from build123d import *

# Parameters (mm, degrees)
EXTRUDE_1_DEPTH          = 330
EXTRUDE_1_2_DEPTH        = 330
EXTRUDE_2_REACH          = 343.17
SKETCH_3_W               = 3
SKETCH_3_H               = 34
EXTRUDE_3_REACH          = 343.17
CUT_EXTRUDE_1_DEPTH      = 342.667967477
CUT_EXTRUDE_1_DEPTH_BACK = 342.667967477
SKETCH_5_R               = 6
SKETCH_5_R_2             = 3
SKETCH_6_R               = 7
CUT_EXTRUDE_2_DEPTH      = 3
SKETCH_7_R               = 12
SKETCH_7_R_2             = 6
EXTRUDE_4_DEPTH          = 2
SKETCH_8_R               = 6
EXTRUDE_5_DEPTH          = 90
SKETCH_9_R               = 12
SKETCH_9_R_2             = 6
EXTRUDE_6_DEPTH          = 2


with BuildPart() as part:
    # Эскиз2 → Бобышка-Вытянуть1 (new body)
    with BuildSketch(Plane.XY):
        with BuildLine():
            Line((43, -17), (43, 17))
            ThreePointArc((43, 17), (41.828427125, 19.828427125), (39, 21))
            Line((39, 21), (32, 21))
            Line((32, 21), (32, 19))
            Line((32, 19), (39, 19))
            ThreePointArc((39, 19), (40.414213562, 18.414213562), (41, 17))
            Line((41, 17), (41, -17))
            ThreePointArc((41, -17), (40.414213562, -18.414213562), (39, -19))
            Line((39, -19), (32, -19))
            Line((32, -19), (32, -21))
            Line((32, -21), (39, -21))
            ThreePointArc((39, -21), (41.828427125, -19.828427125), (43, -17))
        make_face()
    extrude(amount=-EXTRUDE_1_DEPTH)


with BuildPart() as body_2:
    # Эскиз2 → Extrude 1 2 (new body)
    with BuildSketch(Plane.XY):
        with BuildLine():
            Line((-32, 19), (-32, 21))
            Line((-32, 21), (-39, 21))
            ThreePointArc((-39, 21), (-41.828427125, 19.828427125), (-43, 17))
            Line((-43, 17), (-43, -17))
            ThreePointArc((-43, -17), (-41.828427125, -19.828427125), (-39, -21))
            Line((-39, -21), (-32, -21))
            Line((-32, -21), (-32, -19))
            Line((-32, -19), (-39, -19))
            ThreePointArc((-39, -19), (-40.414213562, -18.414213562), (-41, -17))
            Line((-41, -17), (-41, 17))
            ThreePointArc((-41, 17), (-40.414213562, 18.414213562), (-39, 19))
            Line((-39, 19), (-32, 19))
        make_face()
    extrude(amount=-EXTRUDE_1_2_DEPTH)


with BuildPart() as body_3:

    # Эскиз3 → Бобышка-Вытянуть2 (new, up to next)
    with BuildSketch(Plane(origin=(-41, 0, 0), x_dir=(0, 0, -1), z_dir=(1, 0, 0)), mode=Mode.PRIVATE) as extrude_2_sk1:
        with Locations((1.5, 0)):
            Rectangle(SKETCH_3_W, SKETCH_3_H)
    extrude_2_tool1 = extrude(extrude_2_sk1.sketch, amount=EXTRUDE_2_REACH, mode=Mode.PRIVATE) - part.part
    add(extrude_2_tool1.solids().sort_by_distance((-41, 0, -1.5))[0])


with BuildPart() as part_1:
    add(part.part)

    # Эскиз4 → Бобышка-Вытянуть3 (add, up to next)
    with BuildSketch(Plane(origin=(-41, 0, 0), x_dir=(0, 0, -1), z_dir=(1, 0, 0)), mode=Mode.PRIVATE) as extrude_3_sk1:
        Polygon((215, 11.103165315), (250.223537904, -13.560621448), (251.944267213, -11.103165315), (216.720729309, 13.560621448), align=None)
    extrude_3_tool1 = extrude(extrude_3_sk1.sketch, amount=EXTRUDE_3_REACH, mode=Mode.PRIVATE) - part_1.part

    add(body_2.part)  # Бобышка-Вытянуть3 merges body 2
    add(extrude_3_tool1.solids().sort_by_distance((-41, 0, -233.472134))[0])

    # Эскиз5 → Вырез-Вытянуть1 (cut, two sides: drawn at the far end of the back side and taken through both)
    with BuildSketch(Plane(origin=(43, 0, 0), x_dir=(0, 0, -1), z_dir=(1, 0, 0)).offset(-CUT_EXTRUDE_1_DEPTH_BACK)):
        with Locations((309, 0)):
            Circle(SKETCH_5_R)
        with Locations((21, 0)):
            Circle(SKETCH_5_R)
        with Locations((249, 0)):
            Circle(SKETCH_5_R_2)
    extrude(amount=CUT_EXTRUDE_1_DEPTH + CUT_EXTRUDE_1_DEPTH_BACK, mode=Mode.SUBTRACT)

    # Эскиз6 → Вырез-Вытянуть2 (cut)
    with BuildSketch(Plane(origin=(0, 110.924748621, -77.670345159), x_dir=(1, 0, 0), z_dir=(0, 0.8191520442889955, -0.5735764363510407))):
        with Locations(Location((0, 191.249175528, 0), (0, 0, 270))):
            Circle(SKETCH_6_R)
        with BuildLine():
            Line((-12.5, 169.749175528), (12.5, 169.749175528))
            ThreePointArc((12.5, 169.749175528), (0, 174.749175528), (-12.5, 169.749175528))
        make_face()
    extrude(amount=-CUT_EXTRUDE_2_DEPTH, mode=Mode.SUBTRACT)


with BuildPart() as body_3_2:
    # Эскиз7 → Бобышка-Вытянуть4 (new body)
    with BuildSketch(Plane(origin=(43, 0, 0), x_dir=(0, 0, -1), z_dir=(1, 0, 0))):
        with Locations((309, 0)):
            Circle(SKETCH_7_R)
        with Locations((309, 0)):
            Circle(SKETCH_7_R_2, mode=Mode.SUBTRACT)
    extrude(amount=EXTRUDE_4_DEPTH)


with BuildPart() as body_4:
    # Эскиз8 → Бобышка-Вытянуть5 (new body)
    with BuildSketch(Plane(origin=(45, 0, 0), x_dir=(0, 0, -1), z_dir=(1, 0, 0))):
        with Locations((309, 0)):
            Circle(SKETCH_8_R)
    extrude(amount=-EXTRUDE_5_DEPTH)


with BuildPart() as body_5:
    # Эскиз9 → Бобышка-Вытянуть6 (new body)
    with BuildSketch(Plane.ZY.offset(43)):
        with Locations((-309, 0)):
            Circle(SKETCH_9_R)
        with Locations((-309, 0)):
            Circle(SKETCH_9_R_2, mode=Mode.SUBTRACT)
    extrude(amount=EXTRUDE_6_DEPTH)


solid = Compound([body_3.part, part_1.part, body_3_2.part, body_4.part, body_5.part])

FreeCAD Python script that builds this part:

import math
import FreeCAD as App
import Part
import Sketcher

V = App.Vector
Q = App.Units.Quantity

doc = App.newDocument("Part")
body = doc.addObject("PartDesign::Body", "Body")

# Sketch on XY plane
sketch1 = body.newObject("Sketcher::SketchObject", "Sketch")
sketch1.AttachmentSupport = (doc.getObject("XY_Plane"), [""])
sketch1.MapMode = "FlatFace"
sketch1.addGeometry([
    Part.LineSegment(V(43, -17, 0), V(43, 17, 0)),  # 0
    Part.ArcOfCircle(Part.Circle(V(39, 17, 0), V(0, 0, 1), 4), math.radians(0), math.radians(90)),  # 1
    Part.LineSegment(V(39, 21, 0), V(32, 21, 0)),  # 2
    Part.LineSegment(V(32, 21, 0), V(32, 19, 0)),  # 3
    Part.LineSegment(V(32, 19, 0), V(39, 19, 0)),  # 4
    Part.ArcOfCircle(Part.Circle(V(39, 17, 0), V(0, 0, 1), 2), math.radians(0), math.radians(90)),  # 5
    Part.LineSegment(V(41, 17, 0), V(41, -17, 0)),  # 6
    Part.ArcOfCircle(Part.Circle(V(39, -17, 0), V(0, 0, 1), 2), math.radians(-90), math.radians(0)),  # 7
    Part.LineSegment(V(39, -19, 0), V(32, -19, 0)),  # 8
    Part.LineSegment(V(32, -19, 0), V(32, -21, 0)),  # 9
    Part.LineSegment(V(32, -21, 0), V(39, -21, 0)),  # 10
    Part.ArcOfCircle(Part.Circle(V(39, -17, 0), V(0, 0, 1), 4), math.radians(-90), math.radians(0)),  # 11
], False)
sketch1.addConstraint([
    Sketcher.Constraint("Tangent", 0, 2, 1, 1),
    Sketcher.Constraint("Tangent", 1, 2, 2, 1),
    Sketcher.Constraint("Coincident", 2, 2, 3, 1),
    Sketcher.Constraint("Coincident", 3, 2, 4, 1),
    Sketcher.Constraint("Tangent", 4, 2, 5, 2),
    Sketcher.Constraint("Tangent", 5, 1, 6, 1),
    Sketcher.Constraint("Tangent", 6, 2, 7, 2),
    Sketcher.Constraint("Tangent", 7, 1, 8, 1),
    Sketcher.Constraint("Coincident", 8, 2, 9, 1),
    Sketcher.Constraint("Coincident", 9, 2, 10, 1),
    Sketcher.Constraint("Tangent", 10, 2, 11, 1),
    Sketcher.Constraint("Tangent", 11, 2, 0, 1),
    Sketcher.Constraint("Vertical", 0),
    Sketcher.Constraint("Horizontal", 2),
    Sketcher.Constraint("Vertical", 3),
    Sketcher.Constraint("Horizontal", 4),
    Sketcher.Constraint("Vertical", 6),
    Sketcher.Constraint("Horizontal", 8),
    Sketcher.Constraint("Vertical", 9),
    Sketcher.Constraint("Horizontal", 10),
    Sketcher.Constraint("Coincident", 5, 3, 1, 3),
    Sketcher.Constraint("Coincident", 11, 3, 7, 3),
    Sketcher.Constraint("Equal", 5, 7),
    Sketcher.Constraint("Symmetric", 3, 2, 8, 2, -1),
    Sketcher.Constraint("Radius", 1, Q("4 mm")),
    Sketcher.Constraint("Radius", 5, Q("2 mm")),
    Sketcher.Constraint("DistanceX", 2, 2, 2, 1, Q("7 mm")),
    Sketcher.Constraint("DistanceY", 0, 1, 0, 2, Q("34 mm")),
    Sketcher.Constraint("DistanceX", -1, 1, 1, 3, Q("39 mm")),
])
pad1 = body.newObject("PartDesign::Pad", "Pad")
pad1.Profile = sketch1
pad1.Length = 330
pad1.Reversed = True
body2 = doc.addObject("PartDesign::Body", "Body001")

# Sketch on XY plane
sketch2 = body2.newObject("Sketcher::SketchObject", "Sketch001")
sketch2.AttachmentSupport = (doc.getObject("XY_Plane001"), [""])
sketch2.MapMode = "FlatFace"
sketch2.addGeometry([
    Part.LineSegment(V(-32, 19, 0), V(-32, 21, 0)),  # 0
    Part.LineSegment(V(-32, 21, 0), V(-39, 21, 0)),  # 1
    Part.ArcOfCircle(Part.Circle(V(-39, 17, 0), V(0, 0, 1), 4), math.radians(90), math.radians(180)),  # 2
    Part.LineSegment(V(-43, 17, 0), V(-43, -17, 0)),  # 3
    Part.ArcOfCircle(Part.Circle(V(-39, -17, 0), V(0, 0, 1), 4), math.radians(180), math.radians(270)),  # 4
    Part.LineSegment(V(-39, -21, 0), V(-32, -21, 0)),  # 5
    Part.LineSegment(V(-32, -21, 0), V(-32, -19, 0)),  # 6
    Part.LineSegment(V(-32, -19, 0), V(-39, -19, 0)),  # 7
    Part.ArcOfCircle(Part.Circle(V(-39, -17, 0), V(0, 0, 1), 2), math.radians(-180), math.radians(-90)),  # 8
    Part.LineSegment(V(-41, -17, 0), V(-41, 17, 0)),  # 9
    Part.ArcOfCircle(Part.Circle(V(-39, 17, 0), V(0, 0, 1), 2), math.radians(90), math.radians(180)),  # 10
    Part.LineSegment(V(-39, 19, 0), V(-32, 19, 0)),  # 11
], False)
sketch2.addConstraint([
    Sketcher.Constraint("Coincident", 0, 2, 1, 1),
    Sketcher.Constraint("Tangent", 1, 2, 2, 1),
    Sketcher.Constraint("Tangent", 2, 2, 3, 1),
    Sketcher.Constraint("Tangent", 3, 2, 4, 1),
    Sketcher.Constraint("Tangent", 4, 2, 5, 1),
    Sketcher.Constraint("Coincident", 5, 2, 6, 1),
    Sketcher.Constraint("Coincident", 6, 2, 7, 1),
    Sketcher.Constraint("Tangent", 7, 2, 8, 2),
    Sketcher.Constraint("Tangent", 8, 1, 9, 1),
    Sketcher.Constraint("Tangent", 9, 2, 10, 2),
    Sketcher.Constraint("Tangent", 10, 1, 11, 1),
    Sketcher.Constraint("Coincident", 11, 2, 0, 1),
    Sketcher.Constraint("Vertical", 0),
    Sketcher.Constraint("Horizontal", 1),
    Sketcher.Constraint("Vertical", 3),
    Sketcher.Constraint("Horizontal", 5),
    Sketcher.Constraint("Vertical", 6),
    Sketcher.Constraint("Horizontal", 7),
    Sketcher.Constraint("Vertical", 9),
    Sketcher.Constraint("Horizontal", 11),
    Sketcher.Constraint("Coincident", 8, 3, 4, 3),
    Sketcher.Constraint("Coincident", 10, 3, 2, 3),
    Sketcher.Constraint("Equal", 2, 4),
    Sketcher.Constraint("Symmetric", 0, 2, 5, 2, -1),
    Sketcher.Constraint("Radius", 2, Q("4 mm")),
    Sketcher.Constraint("Radius", 8, Q("2 mm")),
    Sketcher.Constraint("DistanceX", 1, 2, 1, 1, Q("7 mm")),
    Sketcher.Constraint("DistanceY", 3, 2, 3, 1, Q("34 mm")),
    Sketcher.Constraint("DistanceX", 2, 3, -1, 1, Q("39 mm")),
])
pad2 = body2.newObject("PartDesign::Pad", "Pad001")
pad2.Profile = sketch2
pad2.Length = 330
pad2.Reversed = True
body3 = doc.addObject("PartDesign::Body", "Body002")

# Sketch on YZ plane
sketch3 = body3.newObject("Sketcher::SketchObject", "Sketch002")
sketch3.AttachmentSupport = (doc.getObject("YZ_Plane002"), [""])
sketch3.MapMode = "FlatFace"
sketch3.AttachmentOffset = App.Placement(V(0, 0, -41), App.Rotation())
sketch3.addGeometry([
    Part.LineSegment(V(17, 0, 0), V(-17, 0, 0)),
    Part.LineSegment(V(-17, 0, 0), V(-17, -3, 0)),
    Part.LineSegment(V(-17, -3, 0), V(17, -3, 0)),
    Part.LineSegment(V(17, -3, 0), V(17, 0, 0)),
], False)
sketch3.addConstraint([
    Sketcher.Constraint("Coincident", 0, 2, 1, 1),
    Sketcher.Constraint("Coincident", 1, 2, 2, 1),
    Sketcher.Constraint("Coincident", 2, 2, 3, 1),
    Sketcher.Constraint("Coincident", 3, 2, 0, 1),
    Sketcher.Constraint("Horizontal", 0),
    Sketcher.Constraint("Vertical", 1),
    Sketcher.Constraint("Horizontal", 2),
    Sketcher.Constraint("Vertical", 3),
    Sketcher.Constraint("Symmetric", 0, 2, 3, 2, -1, 1),
    Sketcher.Constraint("DistanceX", 0, 2, 0, 1, Q("34 mm")),
    Sketcher.Constraint("DistanceY", 1, 2, 1, 1, Q("3 mm")),
])
pad3 = body3.newObject("PartDesign::Pad", "Pad002")
pad3.Profile = sketch3
pad3.Length = 82
body.AllowCompound = True
doc.recompute()

boolean = body.newObject("PartDesign::Boolean", "Boolean")
boolean.Type = "Fuse"
boolean.addObjects([body2])

# Sketch on YZ plane
sketch4 = body.newObject("Sketcher::SketchObject", "Sketch003")
sketch4.AttachmentSupport = (doc.getObject("YZ_Plane"), [""])
sketch4.MapMode = "FlatFace"
sketch4.AttachmentOffset = App.Placement(V(0, 0, -41), App.Rotation())
sketch4.addGeometry([
    Part.LineSegment(V(11.1, -215, 0), V(-13.6, -250.2, 0)),
    Part.LineSegment(V(-13.6, -250.2, 0), V(-11.1, -251.9, 0)),
    Part.LineSegment(V(-11.1, -251.9, 0), V(13.6, -216.7, 0)),
    Part.LineSegment(V(13.6, -216.7, 0), V(11.1, -215, 0)),
], False)
sketch4.addConstraint([
    Sketcher.Constraint("Coincident", 0, 2, 1, 1),
    Sketcher.Constraint("Coincident", 1, 2, 2, 1),
    Sketcher.Constraint("Coincident", 2, 2, 3, 1),
    Sketcher.Constraint("Coincident", 3, 2, 0, 1),
    Sketcher.Constraint("Perpendicular", 0, 1),
    Sketcher.Constraint("Perpendicular", 1, 2),
    Sketcher.Constraint("Perpendicular", 2, 3),
    Sketcher.Constraint("Angle", 0, Q("-125 deg")),
    Sketcher.Constraint("Distance", 0, Q("43 mm")),
    Sketcher.Constraint("Distance", 1, Q("3 mm")),
    Sketcher.Constraint("DistanceY", 3, 2, -1, 1, Q("215 mm")),
    Sketcher.Constraint("DistanceX", 0, 2, -1, 1, Q("13.560621 mm")),
])
pad4 = body.newObject("PartDesign::Pad", "Pad003")
pad4.Profile = sketch4
pad4.Type = "UpToFirst"

# Sketch on YZ plane
sketch5 = body.newObject("Sketcher::SketchObject", "Sketch004")
sketch5.AttachmentSupport = (doc.getObject("YZ_Plane"), [""])
sketch5.MapMode = "FlatFace"
sketch5.AttachmentOffset = App.Placement(V(0, 0, 43), App.Rotation())
sketch5.addGeometry([
    Part.Circle(V(0, -309, 0), V(0, 0, 1), 6),
    Part.Circle(V(0, -21, 0), V(0, 0, 1), 6),
    Part.Circle(V(0, -249, 0), V(0, 0, 1), 3),
], False)
sketch5.addConstraint([
    Sketcher.Constraint("Equal", 0, 1),
    Sketcher.Constraint("PointOnObject", 0, 3, -2),
    Sketcher.Constraint("PointOnObject", 1, 3, -2),
    Sketcher.Constraint("PointOnObject", 2, 3, -2),
    Sketcher.Constraint("Diameter", 0, Q("12 mm")),
    Sketcher.Constraint("Diameter", 2, Q("6 mm")),
    Sketcher.Constraint("DistanceY", 0, 3, -1, 1, Q("309 mm")),
    Sketcher.Constraint("DistanceY", 1, 3, -1, 1, Q("21 mm")),
    Sketcher.Constraint("DistanceY", 2, 3, -1, 1, Q("249 mm")),
])
pocket1 = body.newObject("PartDesign::Pocket", "Pocket")
pocket1.Profile = sketch5
pocket1.Type = "ThroughAll"
pocket1.Midplane = True

# Sketch on an angled plane
sketch6 = body.newObject("Sketcher::SketchObject", "Sketch005")
sketch6.Placement = App.Placement(V(0, 110.924749, -77.670345), App.Rotation(V(1, 0, 0), V(0, -0.573576436, -0.819152044), V(0, 0.819152044, -0.573576436), "ZXY"))
sketch6.addGeometry([
    Part.Circle(V(0, 191, 0), V(0, 0, 1), 7),
    Part.LineSegment(V(-12, 170, 0), V(12, 170, 0)),
    Part.ArcOfCircle(Part.Circle(V(0, 157, 0), V(0, 0, 1), 18), math.radians(46), math.radians(134)),
], False)
sketch6.addConstraint([
    Sketcher.Constraint("Coincident", 1, 1, 2, 2),
    Sketcher.Constraint("Coincident", 2, 1, 1, 2),
    Sketcher.Constraint("Horizontal", 1),
    Sketcher.Constraint("PointOnObject", 0, 3, -2),
    Sketcher.Constraint("PointOnObject", 2, 3, -2),
    Sketcher.Constraint("Diameter", 0, Q("14 mm")),
    Sketcher.Constraint("DistanceX", 1, 1, 1, 2, Q("25 mm")),
    Sketcher.Constraint("Radius", 2, Q("18.125 mm")),
    Sketcher.Constraint("DistanceY", 1, 1, 0, 3, Q("21.5 mm")),
    Sketcher.Constraint("DistanceY", -1, 1, 0, 3, Q("191.249175 mm")),
])
pocket2 = body.newObject("PartDesign::Pocket", "Pocket001")
pocket2.Profile = sketch6
pocket2.Length = 3
body4 = doc.addObject("PartDesign::Body", "Body003")

# Sketch on YZ plane
sketch7 = body4.newObject("Sketcher::SketchObject", "Sketch006")
sketch7.AttachmentSupport = (doc.getObject("YZ_Plane003"), [""])
sketch7.MapMode = "FlatFace"
sketch7.AttachmentOffset = App.Placement(V(0, 0, 43), App.Rotation())
sketch7.addGeometry([
    Part.Circle(V(0, -309, 0), V(0, 0, 1), 12),
    Part.Circle(V(0, -309, 0), V(0, 0, 1), 6),
], False)
sketch7.addConstraint([
    Sketcher.Constraint("Coincident", 1, 3, 0, 3),
    Sketcher.Constraint("PointOnObject", 0, 3, -2),
    Sketcher.Constraint("Diameter", 0, Q("24 mm")),
    Sketcher.Constraint("Diameter", 1, Q("12 mm")),
    Sketcher.Constraint("DistanceY", 0, 3, -1, 1, Q("309 mm")),
])
pad5 = body4.newObject("PartDesign::Pad", "Pad004")
pad5.Profile = sketch7
pad5.Length = 2
body5 = doc.addObject("PartDesign::Body", "Body004")

# Sketch on YZ plane
sketch8 = body5.newObject("Sketcher::SketchObject", "Sketch007")
sketch8.AttachmentSupport = (doc.getObject("YZ_Plane004"), [""])
sketch8.MapMode = "FlatFace"
sketch8.AttachmentOffset = App.Placement(V(0, 0, 45), App.Rotation())
sketch8.addGeometry(Part.Circle(V(0, -309, 0), V(0, 0, 1), 6), False)
sketch8.addConstraint([
    Sketcher.Constraint("PointOnObject", 0, 3, -2),
    Sketcher.Constraint("Diameter", 0, Q("12 mm")),
    Sketcher.Constraint("DistanceY", 0, 3, -1, 1, Q("309 mm")),
])
pad6 = body5.newObject("PartDesign::Pad", "Pad005")
pad6.Profile = sketch8
pad6.Length = 90
pad6.Reversed = True
body6 = doc.addObject("PartDesign::Body", "Body005")

# Sketch on YZ plane
sketch9 = body6.newObject("Sketcher::SketchObject", "Sketch008")
sketch9.AttachmentSupport = (doc.getObject("YZ_Plane005"), [""])
sketch9.MapMode = "FlatFace"
sketch9.AttachmentOffset = App.Placement(V(0, 0, -43), App.Rotation())
sketch9.addGeometry([
    Part.Circle(V(0, -309, 0), V(0, 0, 1), 12),
    Part.Circle(V(0, -309, 0), V(0, 0, 1), 6),
], False)
sketch9.addConstraint([
    Sketcher.Constraint("Coincident", 1, 3, 0, 3),
    Sketcher.Constraint("PointOnObject", 0, 3, -2),
    Sketcher.Constraint("Diameter", 0, Q("24 mm")),
    Sketcher.Constraint("Diameter", 1, Q("12 mm")),
    Sketcher.Constraint("DistanceY", 0, 3, -1, 1, Q("309 mm")),
])
pad7 = body6.newObject("PartDesign::Pad", "Pad006")
pad7.Profile = sketch9
pad7.Length = 2
pad7.Reversed = True

doc.recompute()
